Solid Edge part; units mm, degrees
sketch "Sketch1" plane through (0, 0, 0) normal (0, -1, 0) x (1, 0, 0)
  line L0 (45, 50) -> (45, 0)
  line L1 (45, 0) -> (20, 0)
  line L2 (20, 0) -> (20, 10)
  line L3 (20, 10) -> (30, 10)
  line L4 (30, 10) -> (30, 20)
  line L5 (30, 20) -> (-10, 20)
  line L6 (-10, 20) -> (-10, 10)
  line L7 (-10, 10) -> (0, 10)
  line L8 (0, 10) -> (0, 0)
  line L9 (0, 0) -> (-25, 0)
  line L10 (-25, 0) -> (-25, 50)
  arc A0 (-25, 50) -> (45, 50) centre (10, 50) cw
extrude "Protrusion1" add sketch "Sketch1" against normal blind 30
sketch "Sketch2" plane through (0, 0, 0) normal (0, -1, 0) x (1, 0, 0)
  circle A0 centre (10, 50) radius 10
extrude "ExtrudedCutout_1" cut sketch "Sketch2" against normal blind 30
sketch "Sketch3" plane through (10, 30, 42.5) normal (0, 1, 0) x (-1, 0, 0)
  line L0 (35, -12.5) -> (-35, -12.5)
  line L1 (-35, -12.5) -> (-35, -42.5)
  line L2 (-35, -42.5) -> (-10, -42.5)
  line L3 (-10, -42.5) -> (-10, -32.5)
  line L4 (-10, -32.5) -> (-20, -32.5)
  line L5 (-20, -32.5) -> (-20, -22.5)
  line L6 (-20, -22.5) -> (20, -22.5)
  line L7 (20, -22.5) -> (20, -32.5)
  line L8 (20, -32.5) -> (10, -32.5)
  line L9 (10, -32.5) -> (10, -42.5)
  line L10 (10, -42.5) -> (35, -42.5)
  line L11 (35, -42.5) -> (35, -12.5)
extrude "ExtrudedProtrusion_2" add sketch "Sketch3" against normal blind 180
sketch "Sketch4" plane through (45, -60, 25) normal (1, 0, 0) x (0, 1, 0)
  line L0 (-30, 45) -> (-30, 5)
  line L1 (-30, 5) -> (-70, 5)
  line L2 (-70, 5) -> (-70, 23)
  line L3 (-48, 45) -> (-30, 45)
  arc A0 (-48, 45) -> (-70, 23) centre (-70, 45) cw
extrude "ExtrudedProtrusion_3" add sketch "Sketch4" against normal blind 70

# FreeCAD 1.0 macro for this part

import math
import FreeCAD as App
import Part
import Sketcher

V = App.Vector


def add_polygon(sketch, points):
    """Adds a closed chain of lines whose ends are joined by coincident constraints."""
    first, n = sketch.GeometryCount, len(points)
    for a, b in zip(points, points[1:] + points[:1]):
        sketch.addGeometry(Part.LineSegment(App.Vector(*a, 0), App.Vector(*b, 0)), False)
    for i in range(n):
        sketch.addConstraint(Sketcher.Constraint("Coincident", first + i, 2, first + (i + 1) % n, 1))

doc = App.newDocument("Part")
params = doc.addObject("Spreadsheet::Sheet", "Params")
for row, (alias, value) in enumerate([
    ("sketch1_radius", "35 mm"),
    ("sketch1_width", "25 mm"),
    ("sketch1_width2", "10 mm"),
    ("sketch1_height", "50 mm"),
    ("pad1_length", "30 mm"),
    ("sketch2_diameter", "20 mm"),
    ("pocket1_length", "30 mm"),
    ("sketch3_width", "70 mm"),
    ("sketch3_width2", "25 mm"),
    ("sketch3_width3", "10 mm"),
    ("sketch3_height", "30 mm"),
    ("pad2_length", "180 mm"),
    ("sketch4_radius", "22 mm"),
    ("sketch4_width", "18 mm"),
    ("pad3_length", "70 mm"),
], start=1):
    params.set(f"A{row}", alias)
    params.set(f"B{row}", "=" + value)
    params.setAlias(f"B{row}", alias)

body = doc.addObject("PartDesign::Body", "Body")

# Sketch on XZ plane
sketch1 = body.newObject("Sketcher::SketchObject", "Sketch")
sketch1.AttachmentSupport = (doc.getObject("XZ_Plane"), [""])
sketch1.MapMode = "FlatFace"
sketch1.addGeometry(Part.LineSegment(V(45, 0, 0), V(45, 50, 0)), False)
sketch1.addGeometry(Part.ArcOfCircle(Part.Circle(V(10, 50, 0), V(0, 0, 1), 35), math.radians(0), math.radians(180)), False)
sketch1.addGeometry(Part.LineSegment(V(-25, 50, 0), V(-25, 0, 0)), False)
sketch1.addGeometry(Part.LineSegment(V(-25, 0, 0), V(0, 0, 0)), False)
sketch1.addGeometry(Part.LineSegment(V(0, 0, 0), V(0, 10, 0)), False)
sketch1.addGeometry(Part.LineSegment(V(0, 10, 0), V(-10, 10, 0)), False)
sketch1.addGeometry(Part.LineSegment(V(-10, 10, 0), V(-10, 20, 0)), False)
sketch1.addGeometry(Part.LineSegment(V(-10, 20, 0), V(30, 20, 0)), False)
sketch1.addGeometry(Part.LineSegment(V(30, 20, 0), V(30, 10, 0)), False)
sketch1.addGeometry(Part.LineSegment(V(30, 10, 0), V(20, 10, 0)), False)
sketch1.addGeometry(Part.LineSegment(V(20, 10, 0), V(20, 0, 0)), False)
sketch1.addGeometry(Part.LineSegment(V(20, 0, 0), V(45, 0, 0)), False)
sketch1.addConstraint(Sketcher.Constraint("Tangent", 0, 2, 1, 1))
sketch1.addConstraint(Sketcher.Constraint("Tangent", 1, 2, 2, 1))
sketch1.addConstraint(Sketcher.Constraint("Coincident", 2, 2, 3, 1))
sketch1.addConstraint(Sketcher.Constraint("Coincident", 3, 2, 4, 1))
sketch1.addConstraint(Sketcher.Constraint("Coincident", 4, 2, 5, 1))
sketch1.addConstraint(Sketcher.Constraint("Coincident", 5, 2, 6, 1))
sketch1.addConstraint(Sketcher.Constraint("Coincident", 6, 2, 7, 1))
sketch1.addConstraint(Sketcher.Constraint("Coincident", 7, 2, 8, 1))
sketch1.addConstraint(Sketcher.Constraint("Coincident", 8, 2, 9, 1))
sketch1.addConstraint(Sketcher.Constraint("Coincident", 9, 2, 10, 1))
sketch1.addConstraint(Sketcher.Constraint("Coincident", 10, 2, 11, 1))
sketch1.addConstraint(Sketcher.Constraint("Coincident", 11, 2, 0, 1))
sketch1.addConstraint(Sketcher.Constraint("Vertical", 0))
sketch1.addConstraint(Sketcher.Constraint("Vertical", 2))
sketch1.addConstraint(Sketcher.Constraint("Horizontal", 3))
sketch1.addConstraint(Sketcher.Constraint("Vertical", 4))
sketch1.addConstraint(Sketcher.Constraint("Horizontal", 5))
sketch1.addConstraint(Sketcher.Constraint("Vertical", 6))
sketch1.addConstraint(Sketcher.Constraint("Horizontal", 7))
sketch1.addConstraint(Sketcher.Constraint("Vertical", 8))
sketch1.addConstraint(Sketcher.Constraint("Horizontal", 9))
sketch1.addConstraint(Sketcher.Constraint("Vertical", 10))
sketch1.addConstraint(Sketcher.Constraint("Horizontal", 11))
sketch1.addConstraint(Sketcher.Constraint("Coincident", 3, 2, -1, 1))
sketch1.addConstraint(Sketcher.Constraint("PointOnObject", 10, 2, -1))
sketch1.addConstraint(Sketcher.Constraint("Horizontal", 5, 2, 8, 2))
sketch1.addConstraint(Sketcher.Constraint("Equal", 5, 9))
sketch1.addConstraint(Sketcher.Constraint("Equal", 3, 11))
sketch1.addConstraint(Sketcher.Constraint("Equal", 9, 4))
sketch1.addConstraint(Sketcher.Constraint("Equal", 4, 6))
sketch1.addConstraint(Sketcher.Constraint("Radius", 1, 35.0))
sketch1.addConstraint(Sketcher.Constraint("DistanceX", 3, 1, 3, 2, 25.0))
sketch1.addConstraint(Sketcher.Constraint("DistanceX", 5, 2, 5, 1, 10.0))
sketch1.addConstraint(Sketcher.Constraint("DistanceY", 0, 1, 0, 2, 50.0))
sketch1.setExpression("Constraints[30]", "Params.sketch1_radius")
sketch1.setExpression("Constraints[31]", "Params.sketch1_width")
sketch1.setExpression("Constraints[32]", "Params.sketch1_width2")
sketch1.setExpression("Constraints[33]", "Params.sketch1_height")
pad1 = body.newObject("PartDesign::Pad", "Pad")
pad1.Profile = sketch1
pad1.setExpression("Length", "Params.pad1_length")
pad1.Reversed = True

# Sketch on XZ plane
sketch2 = body.newObject("Sketcher::SketchObject", "Sketch001")
sketch2.AttachmentSupport = (doc.getObject("XZ_Plane"), [""])
sketch2.MapMode = "FlatFace"
sketch2.addGeometry(Part.Circle(V(10, 50, 0), V(0, 0, 1), 10), False)
sketch2.addConstraint(Sketcher.Constraint("Diameter", 0, 20.0))
sketch2.addConstraint(Sketcher.Constraint("DistanceX", -1, 1, 0, 3, 10.0))
sketch2.addConstraint(Sketcher.Constraint("DistanceY", -1, 1, 0, 3, 50.0))
sketch2.setExpression("Constraints[0]", "Params.sketch2_diameter")
pocket1 = body.newObject("PartDesign::Pocket", "Pocket")
pocket1.Profile = sketch2
pocket1.setExpression("Length", "Params.pocket1_length")

# Sketch on XZ plane
sketch3 = body.newObject("Sketcher::SketchObject", "Sketch002")
sketch3.AttachmentSupport = (doc.getObject("XZ_Plane"), [""])
sketch3.MapMode = "FlatFace"
sketch3.AttachmentOffset = App.Placement(V(0, 0, -30), App.Rotation())
add_polygon(sketch3, [(-25, 0), (-25, 30), (45, 30), (45, 0), (20, 0), (20, 10), (30, 10), (30, 20), (-10, 20), (-10, 10), (0, 10), (0, 0)])  # lines 0-11
sketch3.addConstraint(Sketcher.Constraint("Vertical", 0))
sketch3.addConstraint(Sketcher.Constraint("Horizontal", 1))
sketch3.addConstraint(Sketcher.Constraint("Vertical", 2))
sketch3.addConstraint(Sketcher.Constraint("Horizontal", 3))
sketch3.addConstraint(Sketcher.Constraint("Vertical", 4))
sketch3.addConstraint(Sketcher.Constraint("Horizontal", 5))
sketch3.addConstraint(Sketcher.Constraint("Vertical", 6))
sketch3.addConstraint(Sketcher.Constraint("Horizontal", 7))
sketch3.addConstraint(Sketcher.Constraint("Vertical", 8))
sketch3.addConstraint(Sketcher.Constraint("Horizontal", 9))
sketch3.addConstraint(Sketcher.Constraint("Vertical", 10))
sketch3.addConstraint(Sketcher.Constraint("Horizontal", 11))
sketch3.addConstraint(Sketcher.Constraint("Coincident", 10, 2, -1, 1))
sketch3.addConstraint(Sketcher.Constraint("PointOnObject", 2, 2, -1))
sketch3.addConstraint(Sketcher.Constraint("Horizontal", 5, 2, 8, 2))
sketch3.addConstraint(Sketcher.Constraint("Equal", 5, 9))
sketch3.addConstraint(Sketcher.Constraint("Equal", 3, 11))
sketch3.addConstraint(Sketcher.Constraint("Equal", 9, 4))
sketch3.addConstraint(Sketcher.Constraint("Equal", 4, 6))
sketch3.addConstraint(Sketcher.Constraint("DistanceX", 1, 1, 1, 2, 70.0))
sketch3.addConstraint(Sketcher.Constraint("DistanceX", 3, 2, 3, 1, 25.0))
sketch3.addConstraint(Sketcher.Constraint("DistanceX", 5, 1, 5, 2, 10.0))
sketch3.addConstraint(Sketcher.Constraint("DistanceY", 0, 1, 0, 2, 30.0))
sketch3.setExpression("Constraints[31]", "Params.sketch3_width")
sketch3.setExpression("Constraints[32]", "Params.sketch3_width2")
sketch3.setExpression("Constraints[33]", "Params.sketch3_width3")
sketch3.setExpression("Constraints[34]", "Params.sketch3_height")
pad2 = body.newObject("PartDesign::Pad", "Pad001")
pad2.Profile = sketch3
pad2.setExpression("Length", "Params.pad2_length")

# Sketch on YZ plane
sketch4 = body.newObject("Sketcher::SketchObject", "Sketch003")
sketch4.AttachmentSupport = (doc.getObject("YZ_Plane"), [""])
sketch4.MapMode = "FlatFace"
sketch4.AttachmentOffset = App.Placement(V(0, 0, 45), App.Rotation())
sketch4.addGeometry(Part.LineSegment(V(-90, 30, 0), V(-90, 70, 0)), False)
sketch4.addGeometry(Part.LineSegment(V(-90, 70, 0), V(-108, 70, 0)), False)
sketch4.addGeometry(Part.ArcOfCircle(Part.Circle(V(-130, 70, 0), V(0, 0, 1), 22), math.radians(-90), math.radians(0)), False)
sketch4.addGeometry(Part.LineSegment(V(-130, 48, 0), V(-130, 30, 0)), False)
sketch4.addGeometry(Part.LineSegment(V(-130, 30, 0), V(-90, 30, 0)), False)
sketch4.addConstraint(Sketcher.Constraint("Coincident", 0, 2, 1, 1))
sketch4.addConstraint(Sketcher.Constraint("Coincident", 1, 2, 2, 2))
sketch4.addConstraint(Sketcher.Constraint("Coincident", 2, 1, 3, 1))
sketch4.addConstraint(Sketcher.Constraint("Coincident", 3, 2, 4, 1))
sketch4.addConstraint(Sketcher.Constraint("Coincident", 4, 2, 0, 1))
sketch4.addConstraint(Sketcher.Constraint("Vertical", 0))
sketch4.addConstraint(Sketcher.Constraint("Horizontal", 1))
sketch4.addConstraint(Sketcher.Constraint("Vertical", 3))
sketch4.addConstraint(Sketcher.Constraint("Horizontal", 4))
sketch4.addConstraint(Sketcher.Constraint("Horizontal", 2, 3, 0, 2))
sketch4.addConstraint(Sketcher.Constraint("Equal", 4, 0))
sketch4.addConstraint(Sketcher.Constraint("Equal", 1, 3))
sketch4.addConstraint(Sketcher.Constraint("Radius", 2, 22.0))
sketch4.addConstraint(Sketcher.Constraint("DistanceX", 1, 2, 1, 1, 18.0))
sketch4.addConstraint(Sketcher.Constraint("DistanceX", 2, 3, -1, 1, 130.0))
sketch4.addConstraint(Sketcher.Constraint("DistanceY", -1, 1, 2, 3, 70.0))
sketch4.setExpression("Constraints[12]", "Params.sketch4_radius")
sketch4.setExpression("Constraints[13]", "Params.sketch4_width")
pad3 = body.newObject("PartDesign::Pad", "Pad002")
pad3.Profile = sketch4
pad3.setExpression("Length", "Params.pad3_length")
pad3.Reversed = True

doc.recompute()
